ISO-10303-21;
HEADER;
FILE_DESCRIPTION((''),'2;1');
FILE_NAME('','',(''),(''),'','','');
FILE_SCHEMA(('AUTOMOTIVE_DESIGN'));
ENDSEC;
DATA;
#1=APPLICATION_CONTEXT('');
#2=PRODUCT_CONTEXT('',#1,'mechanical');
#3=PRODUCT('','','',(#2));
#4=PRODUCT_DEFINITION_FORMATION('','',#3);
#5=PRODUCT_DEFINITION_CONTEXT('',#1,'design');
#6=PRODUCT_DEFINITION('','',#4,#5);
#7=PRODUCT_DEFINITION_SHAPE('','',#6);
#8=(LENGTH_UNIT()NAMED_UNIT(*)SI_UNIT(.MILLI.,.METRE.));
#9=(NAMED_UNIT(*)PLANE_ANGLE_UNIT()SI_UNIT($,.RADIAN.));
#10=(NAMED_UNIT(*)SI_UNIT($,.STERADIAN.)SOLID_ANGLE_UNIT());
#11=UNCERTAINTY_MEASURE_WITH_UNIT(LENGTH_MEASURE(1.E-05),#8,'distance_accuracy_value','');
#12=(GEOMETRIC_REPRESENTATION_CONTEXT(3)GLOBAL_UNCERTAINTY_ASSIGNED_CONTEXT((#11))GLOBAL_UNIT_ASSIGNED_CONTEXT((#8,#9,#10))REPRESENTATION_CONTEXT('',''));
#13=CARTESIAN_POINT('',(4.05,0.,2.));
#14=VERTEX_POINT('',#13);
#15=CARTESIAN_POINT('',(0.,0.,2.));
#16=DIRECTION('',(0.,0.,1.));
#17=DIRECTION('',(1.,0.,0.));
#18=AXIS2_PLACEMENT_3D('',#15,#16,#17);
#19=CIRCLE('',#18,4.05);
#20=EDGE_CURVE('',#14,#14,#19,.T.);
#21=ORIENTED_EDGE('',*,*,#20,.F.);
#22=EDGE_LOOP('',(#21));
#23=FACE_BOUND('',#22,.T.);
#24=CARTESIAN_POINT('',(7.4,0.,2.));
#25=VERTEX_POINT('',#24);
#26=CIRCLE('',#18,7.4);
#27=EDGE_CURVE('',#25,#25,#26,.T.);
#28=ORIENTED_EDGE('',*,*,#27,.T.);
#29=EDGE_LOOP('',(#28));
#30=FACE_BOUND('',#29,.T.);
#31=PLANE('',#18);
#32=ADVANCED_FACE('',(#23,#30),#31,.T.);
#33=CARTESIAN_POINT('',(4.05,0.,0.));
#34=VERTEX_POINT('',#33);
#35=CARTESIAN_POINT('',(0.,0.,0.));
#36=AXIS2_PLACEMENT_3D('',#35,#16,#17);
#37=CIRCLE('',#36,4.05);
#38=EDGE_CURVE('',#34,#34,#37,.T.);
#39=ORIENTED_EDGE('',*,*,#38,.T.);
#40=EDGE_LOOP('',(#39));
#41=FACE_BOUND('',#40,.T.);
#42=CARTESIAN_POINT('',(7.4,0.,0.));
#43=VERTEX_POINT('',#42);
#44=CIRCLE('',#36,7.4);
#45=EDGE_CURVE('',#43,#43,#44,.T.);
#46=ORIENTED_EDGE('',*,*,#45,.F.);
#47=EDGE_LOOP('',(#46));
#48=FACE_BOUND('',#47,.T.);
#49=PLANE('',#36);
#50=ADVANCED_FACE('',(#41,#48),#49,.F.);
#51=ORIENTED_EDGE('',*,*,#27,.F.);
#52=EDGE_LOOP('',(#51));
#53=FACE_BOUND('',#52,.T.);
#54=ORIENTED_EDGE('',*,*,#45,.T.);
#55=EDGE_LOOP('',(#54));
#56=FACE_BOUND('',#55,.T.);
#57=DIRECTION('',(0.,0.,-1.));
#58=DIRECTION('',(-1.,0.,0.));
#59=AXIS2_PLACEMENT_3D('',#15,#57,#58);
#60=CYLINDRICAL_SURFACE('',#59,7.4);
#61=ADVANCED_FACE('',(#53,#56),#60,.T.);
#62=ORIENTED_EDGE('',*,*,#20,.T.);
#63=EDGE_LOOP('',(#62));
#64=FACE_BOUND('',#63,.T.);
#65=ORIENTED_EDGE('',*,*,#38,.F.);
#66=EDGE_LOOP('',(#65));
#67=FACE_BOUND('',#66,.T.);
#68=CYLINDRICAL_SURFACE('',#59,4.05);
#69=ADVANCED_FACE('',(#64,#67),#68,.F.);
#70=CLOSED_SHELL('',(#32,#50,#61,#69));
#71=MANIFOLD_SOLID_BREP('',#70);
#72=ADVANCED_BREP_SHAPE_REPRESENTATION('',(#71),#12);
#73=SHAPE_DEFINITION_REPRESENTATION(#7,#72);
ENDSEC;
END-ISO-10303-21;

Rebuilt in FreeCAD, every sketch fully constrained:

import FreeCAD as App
import Part
import Sketcher

doc = App.newDocument("Part")
params = doc.addObject("Spreadsheet::Sheet", "Params")
for row, (alias, value) in enumerate([
    ("sketch1_diameter", "14.8 mm"),
    ("sketch1_diameter2", "8.1 mm"),
    ("pad1_length", "2 mm"),
], start=1):
    params.set(f"A{row}", alias)
    params.set(f"B{row}", "=" + value)
    params.setAlias(f"B{row}", alias)

body = doc.addObject("PartDesign::Body", "Body")

# Sketch on XY plane
sketch1 = body.newObject("Sketcher::SketchObject", "Sketch")
sketch1.AttachmentSupport = (doc.getObject("XY_Plane"), [""])
sketch1.MapMode = "FlatFace"
sketch1.addGeometry(Part.Circle(App.Vector(0, 0, 0), App.Vector(0, 0, 1), 7.4), False)
sketch1.addGeometry(Part.Circle(App.Vector(0, 0, 0), App.Vector(0, 0, 1), 4), False)
sketch1.addConstraint(Sketcher.Constraint("Coincident", 0, 3, -1, 1))
sketch1.addConstraint(Sketcher.Constraint("Coincident", 1, 3, -1, 1))
sketch1.addConstraint(Sketcher.Constraint("Diameter", 0, 14.8))
sketch1.addConstraint(Sketcher.Constraint("Diameter", 1, 8.1))
sketch1.setExpression("Constraints[2]", "Params.sketch1_diameter")
sketch1.setExpression("Constraints[3]", "Params.sketch1_diameter2")
pad1 = body.newObject("PartDesign::Pad", "Pad")
pad1.Profile = sketch1
pad1.setExpression("Length", "Params.pad1_length")

doc.recompute()
